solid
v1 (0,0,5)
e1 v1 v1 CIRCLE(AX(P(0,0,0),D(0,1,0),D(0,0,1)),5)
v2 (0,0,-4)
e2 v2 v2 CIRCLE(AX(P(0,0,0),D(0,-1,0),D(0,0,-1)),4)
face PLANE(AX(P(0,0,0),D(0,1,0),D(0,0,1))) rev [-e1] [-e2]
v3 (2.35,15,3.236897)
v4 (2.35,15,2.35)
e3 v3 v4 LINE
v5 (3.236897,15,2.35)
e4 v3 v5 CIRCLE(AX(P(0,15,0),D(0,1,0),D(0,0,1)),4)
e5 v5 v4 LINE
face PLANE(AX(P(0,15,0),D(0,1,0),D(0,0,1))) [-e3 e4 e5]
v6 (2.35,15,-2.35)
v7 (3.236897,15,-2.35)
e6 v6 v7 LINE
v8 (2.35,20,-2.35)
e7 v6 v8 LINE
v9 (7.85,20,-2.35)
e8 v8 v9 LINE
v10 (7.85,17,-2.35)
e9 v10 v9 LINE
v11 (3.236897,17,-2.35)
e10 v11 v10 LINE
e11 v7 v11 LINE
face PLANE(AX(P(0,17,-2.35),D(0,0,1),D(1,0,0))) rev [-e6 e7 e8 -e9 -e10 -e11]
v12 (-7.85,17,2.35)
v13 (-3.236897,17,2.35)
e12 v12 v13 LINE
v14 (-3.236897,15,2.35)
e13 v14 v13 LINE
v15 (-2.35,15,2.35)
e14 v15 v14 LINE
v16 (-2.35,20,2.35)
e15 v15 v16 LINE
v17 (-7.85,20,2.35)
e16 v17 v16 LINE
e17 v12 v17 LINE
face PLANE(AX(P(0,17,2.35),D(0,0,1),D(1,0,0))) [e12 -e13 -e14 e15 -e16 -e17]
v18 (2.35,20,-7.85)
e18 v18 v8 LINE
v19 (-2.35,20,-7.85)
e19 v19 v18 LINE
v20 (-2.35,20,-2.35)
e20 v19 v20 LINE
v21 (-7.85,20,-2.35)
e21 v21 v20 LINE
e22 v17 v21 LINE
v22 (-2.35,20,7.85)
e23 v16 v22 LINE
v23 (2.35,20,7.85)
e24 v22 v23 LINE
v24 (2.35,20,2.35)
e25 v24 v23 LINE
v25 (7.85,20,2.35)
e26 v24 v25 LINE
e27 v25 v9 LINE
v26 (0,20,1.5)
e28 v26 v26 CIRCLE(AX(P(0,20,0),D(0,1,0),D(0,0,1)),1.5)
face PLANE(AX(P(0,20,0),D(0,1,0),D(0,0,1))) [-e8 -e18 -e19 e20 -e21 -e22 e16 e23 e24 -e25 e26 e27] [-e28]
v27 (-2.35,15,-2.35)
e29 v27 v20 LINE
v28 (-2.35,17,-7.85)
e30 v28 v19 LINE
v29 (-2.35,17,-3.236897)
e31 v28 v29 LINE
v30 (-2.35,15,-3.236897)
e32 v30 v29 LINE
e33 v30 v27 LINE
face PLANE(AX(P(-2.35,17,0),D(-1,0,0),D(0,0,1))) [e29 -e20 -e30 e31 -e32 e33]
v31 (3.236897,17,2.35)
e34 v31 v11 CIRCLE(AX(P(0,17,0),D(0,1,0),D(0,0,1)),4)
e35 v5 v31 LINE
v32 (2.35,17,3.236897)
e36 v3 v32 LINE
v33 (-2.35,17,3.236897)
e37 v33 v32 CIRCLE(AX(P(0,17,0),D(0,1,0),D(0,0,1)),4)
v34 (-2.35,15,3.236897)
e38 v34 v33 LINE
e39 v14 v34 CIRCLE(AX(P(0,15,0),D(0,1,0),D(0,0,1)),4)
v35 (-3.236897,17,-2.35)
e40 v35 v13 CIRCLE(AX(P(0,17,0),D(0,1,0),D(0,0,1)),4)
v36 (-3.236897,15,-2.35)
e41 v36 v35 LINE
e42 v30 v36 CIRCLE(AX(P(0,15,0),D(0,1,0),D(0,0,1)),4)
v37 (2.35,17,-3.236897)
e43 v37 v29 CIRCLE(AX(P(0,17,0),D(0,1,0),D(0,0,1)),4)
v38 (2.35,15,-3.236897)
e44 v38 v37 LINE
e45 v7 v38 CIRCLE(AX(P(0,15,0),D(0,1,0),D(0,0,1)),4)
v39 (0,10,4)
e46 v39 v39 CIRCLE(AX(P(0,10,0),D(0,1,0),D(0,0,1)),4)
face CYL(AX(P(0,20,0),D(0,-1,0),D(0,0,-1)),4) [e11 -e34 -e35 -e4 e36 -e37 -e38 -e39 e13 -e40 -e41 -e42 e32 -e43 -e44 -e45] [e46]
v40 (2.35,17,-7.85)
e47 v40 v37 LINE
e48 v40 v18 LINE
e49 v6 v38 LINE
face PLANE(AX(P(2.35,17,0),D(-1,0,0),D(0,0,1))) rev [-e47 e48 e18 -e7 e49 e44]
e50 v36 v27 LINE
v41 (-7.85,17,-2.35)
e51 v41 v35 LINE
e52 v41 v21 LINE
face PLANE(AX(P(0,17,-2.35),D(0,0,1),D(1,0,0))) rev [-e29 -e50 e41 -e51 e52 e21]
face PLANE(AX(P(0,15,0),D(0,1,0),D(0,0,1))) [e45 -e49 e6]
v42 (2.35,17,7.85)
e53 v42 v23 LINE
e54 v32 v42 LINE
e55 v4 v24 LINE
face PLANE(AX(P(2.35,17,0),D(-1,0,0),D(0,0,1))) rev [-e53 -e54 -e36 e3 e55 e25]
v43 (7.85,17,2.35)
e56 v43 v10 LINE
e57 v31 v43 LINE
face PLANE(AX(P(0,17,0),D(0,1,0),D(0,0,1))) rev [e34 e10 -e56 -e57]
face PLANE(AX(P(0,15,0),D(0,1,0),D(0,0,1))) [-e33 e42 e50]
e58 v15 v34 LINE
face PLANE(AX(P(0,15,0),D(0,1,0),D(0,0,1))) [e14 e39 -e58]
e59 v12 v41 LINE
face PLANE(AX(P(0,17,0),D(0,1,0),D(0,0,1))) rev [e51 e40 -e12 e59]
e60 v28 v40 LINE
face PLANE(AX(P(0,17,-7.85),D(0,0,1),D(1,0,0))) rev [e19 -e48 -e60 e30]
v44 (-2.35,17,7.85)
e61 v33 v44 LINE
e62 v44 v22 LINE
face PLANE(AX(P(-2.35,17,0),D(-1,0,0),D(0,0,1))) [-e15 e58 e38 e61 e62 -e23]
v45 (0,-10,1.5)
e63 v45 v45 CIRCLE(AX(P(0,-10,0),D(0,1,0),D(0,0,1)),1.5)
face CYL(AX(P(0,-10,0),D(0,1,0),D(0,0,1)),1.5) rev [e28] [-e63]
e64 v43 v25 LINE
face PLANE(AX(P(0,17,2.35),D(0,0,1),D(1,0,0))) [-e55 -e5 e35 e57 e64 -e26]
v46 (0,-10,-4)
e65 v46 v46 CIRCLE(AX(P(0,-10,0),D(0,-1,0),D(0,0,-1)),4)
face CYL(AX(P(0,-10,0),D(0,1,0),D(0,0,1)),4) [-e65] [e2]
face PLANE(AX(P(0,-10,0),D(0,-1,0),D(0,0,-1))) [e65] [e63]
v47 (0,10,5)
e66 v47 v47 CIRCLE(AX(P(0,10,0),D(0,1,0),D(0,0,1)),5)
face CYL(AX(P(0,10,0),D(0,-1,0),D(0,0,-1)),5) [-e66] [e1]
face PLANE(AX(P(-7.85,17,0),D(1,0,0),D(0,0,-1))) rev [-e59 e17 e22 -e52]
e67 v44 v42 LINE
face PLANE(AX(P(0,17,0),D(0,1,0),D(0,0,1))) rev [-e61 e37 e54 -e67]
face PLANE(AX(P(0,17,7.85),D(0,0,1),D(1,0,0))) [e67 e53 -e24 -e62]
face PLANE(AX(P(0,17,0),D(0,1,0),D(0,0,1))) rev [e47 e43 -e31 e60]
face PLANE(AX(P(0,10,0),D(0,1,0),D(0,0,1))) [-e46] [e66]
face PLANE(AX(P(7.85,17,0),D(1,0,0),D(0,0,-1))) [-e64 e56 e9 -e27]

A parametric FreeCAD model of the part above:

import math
import FreeCAD as App
import Part
import Sketcher

V = App.Vector

doc = App.newDocument("Part")
body = doc.addObject("PartDesign::Body", "Body")

# Sketch on XZ plane
sketch1 = body.newObject("Sketcher::SketchObject", "Sketch")
sketch1.AttachmentSupport = (doc.getObject("XZ_Plane"), [""])
sketch1.MapMode = "FlatFace"
sketch1.addGeometry(Part.Circle(V(0, 0, 0), V(0, 0, 1), 5), False)
sketch1.addConstraint([
    Sketcher.Constraint("Coincident", 0, 3, -1, 1),
    Sketcher.Constraint("Diameter", 0, 10.0),
])
pad1 = body.newObject("PartDesign::Pad", "Pad")
pad1.Profile = sketch1
pad1.Length = 10
pad1.Reversed = True

# Sketch on XZ plane
sketch2 = body.newObject("Sketcher::SketchObject", "Sketch001")
sketch2.AttachmentSupport = (doc.getObject("XZ_Plane"), [""])
sketch2.MapMode = "FlatFace"
sketch2.AttachmentOffset = App.Placement(V(0, 0, -10), App.Rotation())
sketch2.addGeometry(Part.Circle(V(0, 0, 0), V(0, 0, 1), 4), False)
sketch2.addConstraint([
    Sketcher.Constraint("Coincident", 0, 3, -1, 1),
    Sketcher.Constraint("Diameter", 0, 8.0),
])
pad2 = body.newObject("PartDesign::Pad", "Pad001")
pad2.Profile = sketch2
pad2.Length = 10
pad2.Reversed = True

# Sketch on XZ plane
sketch3 = body.newObject("Sketcher::SketchObject", "Sketch002")
sketch3.AttachmentSupport = (doc.getObject("XZ_Plane"), [""])
sketch3.MapMode = "FlatFace"
sketch3.AttachmentOffset = App.Placement(V(0, 0, 10), App.Rotation())
sketch3.addGeometry(Part.Circle(V(0, 0, 0), V(0, 0, 1), 4), False)
sketch3.addConstraint([
    Sketcher.Constraint("Coincident", 0, 3, -1, 1),
    Sketcher.Constraint("Diameter", 0, 8.0),
])
pad3 = body.newObject("PartDesign::Pad", "Pad002")
pad3.Profile = sketch3
pad3.Length = 10
pad3.Reversed = True

# Sketch on XZ plane
sketch4 = body.newObject("Sketcher::SketchObject", "Sketch003")
sketch4.AttachmentSupport = (doc.getObject("XZ_Plane"), [""])
sketch4.MapMode = "FlatFace"
sketch4.AttachmentOffset = App.Placement(V(0, 0, -17), App.Rotation())
sketch4.addGeometry([
    Part.LineSegment(V(-7.8, -2.4, 0), V(-7.8, 2.4, 0)),  # 0
    Part.LineSegment(V(-7.8, 2.4, 0), V(-2.4, 2.4, 0)),  # 1
    Part.LineSegment(V(-2.4, 2.4, 0), V(-2.4, 7.8, 0)),  # 2
    Part.LineSegment(V(-2.4, 7.8, 0), V(2.4, 7.8, 0)),  # 3
    Part.LineSegment(V(2.4, 7.8, 0), V(2.4, 2.4, 0)),  # 4
    Part.LineSegment(V(2.4, 2.4, 0), V(7.8, 2.4, 0)),  # 5
    Part.LineSegment(V(7.8, 2.4, 0), V(7.8, -2.4, 0)),  # 6
    Part.LineSegment(V(7.8, -2.4, 0), V(2.4, -2.4, 0)),  # 7
    Part.LineSegment(V(2.4, -2.4, 0), V(2.4, -7.8, 0)),  # 8
    Part.LineSegment(V(2.4, -7.8, 0), V(-2.4, -7.8, 0)),  # 9
    Part.LineSegment(V(-2.4, -7.8, 0), V(-2.4, -2.4, 0)),  # 10
    Part.LineSegment(V(-2.4, -2.4, 0), V(-7.8, -2.4, 0)),  # 11
], False)
sketch4.addConstraint([
    Sketcher.Constraint("Coincident", 0, 2, 1, 1),
    Sketcher.Constraint("Coincident", 1, 2, 2, 1),
    Sketcher.Constraint("Coincident", 2, 2, 3, 1),
    Sketcher.Constraint("Coincident", 3, 2, 4, 1),
    Sketcher.Constraint("Coincident", 4, 2, 5, 1),
    Sketcher.Constraint("Coincident", 5, 2, 6, 1),
    Sketcher.Constraint("Coincident", 6, 2, 7, 1),
    Sketcher.Constraint("Coincident", 7, 2, 8, 1),
    Sketcher.Constraint("Coincident", 8, 2, 9, 1),
    Sketcher.Constraint("Coincident", 9, 2, 10, 1),
    Sketcher.Constraint("Coincident", 10, 2, 11, 1),
    Sketcher.Constraint("Coincident", 11, 2, 0, 1),
    Sketcher.Constraint("Vertical", 0),
    Sketcher.Constraint("Horizontal", 1),
    Sketcher.Constraint("Vertical", 2),
    Sketcher.Constraint("Horizontal", 3),
    Sketcher.Constraint("Vertical", 4),
    Sketcher.Constraint("Horizontal", 5),
    Sketcher.Constraint("Vertical", 6),
    Sketcher.Constraint("Horizontal", 7),
    Sketcher.Constraint("Vertical", 8),
    Sketcher.Constraint("Horizontal", 9),
    Sketcher.Constraint("Vertical", 10),
    Sketcher.Constraint("Horizontal", 11),
    Sketcher.Constraint("Symmetric", 0, 2, 6, 2, -1, 1),
    Sketcher.Constraint("Symmetric", 2, 2, 8, 2, -1, 1),
    Sketcher.Constraint("Symmetric", 4, 2, 10, 2, -1, 1),
    Sketcher.Constraint("Symmetric", 1, 2, 4, 2, -2),
    Sketcher.Constraint("Equal", 9, 0),
    Sketcher.Constraint("Equal", 11, 2),
    Sketcher.Constraint("DistanceX", 1, 1, 1, 2, 5.5),
    Sketcher.Constraint("DistanceX", 3, 1, 3, 2, 4.7),
])
pad4 = body.newObject("PartDesign::Pad", "Pad003")
pad4.Profile = sketch4
pad4.Length = 3
pad4.Reversed = True

# Sketch on XZ plane
sketch5 = body.newObject("Sketcher::SketchObject", "Sketch004")
sketch5.AttachmentSupport = (doc.getObject("XZ_Plane"), [""])
sketch5.MapMode = "FlatFace"
sketch5.AttachmentOffset = App.Placement(V(0, 0, -15), App.Rotation())
sketch5.addGeometry([
    Part.LineSegment(V(-2.4, 2.4, 0), V(-3.2, 2.4, 0)),  # 0
    Part.ArcOfCircle(Part.Circle(V(0, 0, 0), V(0, 0, 1), 4), math.radians(125.98), math.radians(144.02)),  # 1
    Part.LineSegment(V(-2.4, 3.2, 0), V(-2.4, 2.4, 0)),  # 2
    Part.LineSegment(V(3.2, 2.4, 0), V(2.4, 2.4, 0)),  # 3
    Part.LineSegment(V(2.4, 2.4, 0), V(2.4, 3.2, 0)),  # 4
    Part.ArcOfCircle(Part.Circle(V(0, 0, 0), V(0, 0, 1), 4), math.radians(35.98), math.radians(54.02)),  # 5
    Part.LineSegment(V(2.4, -3.2, 0), V(2.4, -2.4, 0)),  # 6
    Part.LineSegment(V(2.4, -2.4, 0), V(3.2, -2.4, 0)),  # 7
    Part.ArcOfCircle(Part.Circle(V(0, 0, 0), V(0, 0, 1), 4), math.radians(-54.02), math.radians(-35.98)),  # 8
    Part.ArcOfCircle(Part.Circle(V(0, 0, 0), V(0, 0, 1), 4), math.radians(-144.02), math.radians(-125.98)),  # 9
    Part.LineSegment(V(-3.2, -2.4, 0), V(-2.4, -2.4, 0)),  # 10
    Part.LineSegment(V(-2.4, -2.4, 0), V(-2.4, -3.2, 0)),  # 11
], False)
sketch5.addConstraint([
    Sketcher.Constraint("Coincident", 0, 2, 1, 2),
    Sketcher.Constraint("Coincident", 1, 1, 2, 1),
    Sketcher.Constraint("Coincident", 2, 2, 0, 1),
    Sketcher.Constraint("Coincident", 3, 2, 4, 1),
    Sketcher.Constraint("Coincident", 4, 2, 5, 2),
    Sketcher.Constraint("Coincident", 5, 1, 3, 1),
    Sketcher.Constraint("Coincident", 6, 2, 7, 1),
    Sketcher.Constraint("Coincident", 7, 2, 8, 2),
    Sketcher.Constraint("Coincident", 8, 1, 6, 1),
    Sketcher.Constraint("Coincident", 9, 1, 10, 1),
    Sketcher.Constraint("Coincident", 10, 2, 11, 1),
    Sketcher.Constraint("Coincident", 11, 2, 9, 2),
    Sketcher.Constraint("Horizontal", 0),
    Sketcher.Constraint("Vertical", 2),
    Sketcher.Constraint("Horizontal", 3),
    Sketcher.Constraint("Vertical", 4),
    Sketcher.Constraint("Vertical", 6),
    Sketcher.Constraint("Horizontal", 7),
    Sketcher.Constraint("Horizontal", 10),
    Sketcher.Constraint("Vertical", 11),
    Sketcher.Constraint("Coincident", 1, 3, -1, 1),
    Sketcher.Constraint("Coincident", 5, 3, -1, 1),
    Sketcher.Constraint("Coincident", 8, 3, -1, 1),
    Sketcher.Constraint("Coincident", 9, 3, -1, 1),
    Sketcher.Constraint("Equal", 1, 5),
    Sketcher.Constraint("Equal", 5, 8),
    Sketcher.Constraint("Equal", 8, 9),
    Sketcher.Constraint("Symmetric", 2, 2, 6, 2, -1, 1),
    Sketcher.Constraint("Symmetric", 3, 2, 10, 2, -1, 1),
    Sketcher.Constraint("Symmetric", 2, 2, 3, 2, -2),
    Sketcher.Constraint("Equal", 10, 2),
    Sketcher.Constraint("Radius", 1, 4.0),
    Sketcher.Constraint("DistanceX", 2, 2, 3, 2, 4.7),
])
pocket1 = body.newObject("PartDesign::Pocket", "Pocket")
pocket1.Profile = sketch5
pocket1.Length = 5

# Sketch on XZ plane
sketch6 = body.newObject("Sketcher::SketchObject", "Sketch005")
sketch6.AttachmentSupport = (doc.getObject("XZ_Plane"), [""])
sketch6.MapMode = "FlatFace"
sketch6.AttachmentOffset = App.Placement(V(0, 0, -20), App.Rotation())
sketch6.addGeometry(Part.Circle(V(0, 0, 0), V(0, 0, 1), 1.5), False)
sketch6.addConstraint([
    Sketcher.Constraint("Coincident", 0, 3, -1, 1),
    Sketcher.Constraint("Diameter", 0, 3.0),
])
pocket2 = body.newObject("PartDesign::Pocket", "Pocket001")
pocket2.Profile = sketch6
pocket2.Type = "ThroughAll"
pocket2.Reversed = True

doc.recompute()
